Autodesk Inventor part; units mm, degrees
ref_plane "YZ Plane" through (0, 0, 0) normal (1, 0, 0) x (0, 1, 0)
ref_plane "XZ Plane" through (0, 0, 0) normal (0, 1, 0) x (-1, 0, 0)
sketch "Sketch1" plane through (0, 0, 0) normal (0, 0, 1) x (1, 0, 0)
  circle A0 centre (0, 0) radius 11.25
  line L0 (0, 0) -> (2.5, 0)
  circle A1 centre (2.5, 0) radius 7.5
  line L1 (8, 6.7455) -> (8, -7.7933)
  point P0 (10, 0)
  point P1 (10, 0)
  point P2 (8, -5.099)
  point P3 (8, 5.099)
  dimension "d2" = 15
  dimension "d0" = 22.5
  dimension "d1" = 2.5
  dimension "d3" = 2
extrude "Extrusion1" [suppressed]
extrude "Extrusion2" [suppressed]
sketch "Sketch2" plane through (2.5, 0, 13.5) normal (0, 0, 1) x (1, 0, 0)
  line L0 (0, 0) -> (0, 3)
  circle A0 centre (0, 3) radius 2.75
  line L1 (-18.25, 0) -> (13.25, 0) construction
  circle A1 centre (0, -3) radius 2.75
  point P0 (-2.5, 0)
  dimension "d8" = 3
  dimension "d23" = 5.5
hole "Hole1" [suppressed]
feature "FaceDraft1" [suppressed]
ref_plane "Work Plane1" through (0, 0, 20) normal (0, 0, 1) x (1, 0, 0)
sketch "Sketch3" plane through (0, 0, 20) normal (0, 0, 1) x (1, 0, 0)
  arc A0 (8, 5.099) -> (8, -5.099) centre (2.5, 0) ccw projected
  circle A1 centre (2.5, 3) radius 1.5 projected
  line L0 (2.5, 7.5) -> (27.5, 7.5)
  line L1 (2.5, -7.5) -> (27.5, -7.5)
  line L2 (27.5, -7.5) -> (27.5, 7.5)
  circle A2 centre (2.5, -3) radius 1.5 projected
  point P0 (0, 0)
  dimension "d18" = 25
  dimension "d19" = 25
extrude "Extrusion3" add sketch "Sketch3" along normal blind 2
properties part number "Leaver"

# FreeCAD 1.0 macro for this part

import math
import FreeCAD as App
import Part
import Sketcher
Q = App.Units.Quantity

doc = App.newDocument("Part")
body = doc.addObject("PartDesign::Body", "Body")

# Sketch on XY plane
sketch1 = body.newObject("Sketcher::SketchObject", "Sketch")
sketch1.AttachmentSupport = (doc.getObject("XY_Plane"), [""])
sketch1.MapMode = "FlatFace"
sketch1.AttachmentOffset = App.Placement(App.Vector(0, 0, 20), App.Rotation())
sketch1.addGeometry([
    Part.LineSegment(App.Vector(27.5, 7.5, 0), App.Vector(2.5, 7.5, 0)),  # 0
    Part.ArcOfCircle(Part.Circle(App.Vector(2.5, 0, 0), App.Vector(0, 0, 1), 7.499987), math.radians(90), math.radians(270)),  # 1
    Part.LineSegment(App.Vector(2.5, -7.5, 0), App.Vector(27.5, -7.5, 0)),  # 2
    Part.LineSegment(App.Vector(27.5, -7.5, 0), App.Vector(27.5, 7.5, 0)),  # 3
    Part.Circle(App.Vector(2.5, -3, 0), App.Vector(0, 0, 1), 1.5),  # 4
    Part.Circle(App.Vector(2.5, 3, 0), App.Vector(0, 0, 1), 1.5),  # 5
], False)
sketch1.addConstraint([
    Sketcher.Constraint("Tangent", 0, 2, 1, 1),
    Sketcher.Constraint("Tangent", 1, 2, 2, 1),
    Sketcher.Constraint("Coincident", 2, 2, 3, 1),
    Sketcher.Constraint("Coincident", 3, 2, 0, 1),
    Sketcher.Constraint("Horizontal", 0),
    Sketcher.Constraint("Horizontal", 2),
    Sketcher.Constraint("Vertical", 3),
    Sketcher.Constraint("Equal", 4, 5),
    Sketcher.Constraint("Symmetric", 4, 3, 5, 3, -1),
    Sketcher.Constraint("PointOnObject", 1, 3, -1),
    Sketcher.Constraint("Vertical", 1, 3, 4, 3),
    Sketcher.Constraint("DistanceX", 0, 2, 0, 1, Q("25 mm")),
    Sketcher.Constraint("Diameter", 4, Q("3 mm")),
    Sketcher.Constraint("Radius", 1, Q("7.5 mm")),
    Sketcher.Constraint("DistanceY", 4, 3, -1, 1, Q("3 mm")),
    Sketcher.Constraint("DistanceX", -1, 1, 1, 3, Q("2.5 mm")),
])
pad1 = body.newObject("PartDesign::Pad", "Pad")
pad1.Profile = sketch1
pad1.Length = 2

doc.recompute()
